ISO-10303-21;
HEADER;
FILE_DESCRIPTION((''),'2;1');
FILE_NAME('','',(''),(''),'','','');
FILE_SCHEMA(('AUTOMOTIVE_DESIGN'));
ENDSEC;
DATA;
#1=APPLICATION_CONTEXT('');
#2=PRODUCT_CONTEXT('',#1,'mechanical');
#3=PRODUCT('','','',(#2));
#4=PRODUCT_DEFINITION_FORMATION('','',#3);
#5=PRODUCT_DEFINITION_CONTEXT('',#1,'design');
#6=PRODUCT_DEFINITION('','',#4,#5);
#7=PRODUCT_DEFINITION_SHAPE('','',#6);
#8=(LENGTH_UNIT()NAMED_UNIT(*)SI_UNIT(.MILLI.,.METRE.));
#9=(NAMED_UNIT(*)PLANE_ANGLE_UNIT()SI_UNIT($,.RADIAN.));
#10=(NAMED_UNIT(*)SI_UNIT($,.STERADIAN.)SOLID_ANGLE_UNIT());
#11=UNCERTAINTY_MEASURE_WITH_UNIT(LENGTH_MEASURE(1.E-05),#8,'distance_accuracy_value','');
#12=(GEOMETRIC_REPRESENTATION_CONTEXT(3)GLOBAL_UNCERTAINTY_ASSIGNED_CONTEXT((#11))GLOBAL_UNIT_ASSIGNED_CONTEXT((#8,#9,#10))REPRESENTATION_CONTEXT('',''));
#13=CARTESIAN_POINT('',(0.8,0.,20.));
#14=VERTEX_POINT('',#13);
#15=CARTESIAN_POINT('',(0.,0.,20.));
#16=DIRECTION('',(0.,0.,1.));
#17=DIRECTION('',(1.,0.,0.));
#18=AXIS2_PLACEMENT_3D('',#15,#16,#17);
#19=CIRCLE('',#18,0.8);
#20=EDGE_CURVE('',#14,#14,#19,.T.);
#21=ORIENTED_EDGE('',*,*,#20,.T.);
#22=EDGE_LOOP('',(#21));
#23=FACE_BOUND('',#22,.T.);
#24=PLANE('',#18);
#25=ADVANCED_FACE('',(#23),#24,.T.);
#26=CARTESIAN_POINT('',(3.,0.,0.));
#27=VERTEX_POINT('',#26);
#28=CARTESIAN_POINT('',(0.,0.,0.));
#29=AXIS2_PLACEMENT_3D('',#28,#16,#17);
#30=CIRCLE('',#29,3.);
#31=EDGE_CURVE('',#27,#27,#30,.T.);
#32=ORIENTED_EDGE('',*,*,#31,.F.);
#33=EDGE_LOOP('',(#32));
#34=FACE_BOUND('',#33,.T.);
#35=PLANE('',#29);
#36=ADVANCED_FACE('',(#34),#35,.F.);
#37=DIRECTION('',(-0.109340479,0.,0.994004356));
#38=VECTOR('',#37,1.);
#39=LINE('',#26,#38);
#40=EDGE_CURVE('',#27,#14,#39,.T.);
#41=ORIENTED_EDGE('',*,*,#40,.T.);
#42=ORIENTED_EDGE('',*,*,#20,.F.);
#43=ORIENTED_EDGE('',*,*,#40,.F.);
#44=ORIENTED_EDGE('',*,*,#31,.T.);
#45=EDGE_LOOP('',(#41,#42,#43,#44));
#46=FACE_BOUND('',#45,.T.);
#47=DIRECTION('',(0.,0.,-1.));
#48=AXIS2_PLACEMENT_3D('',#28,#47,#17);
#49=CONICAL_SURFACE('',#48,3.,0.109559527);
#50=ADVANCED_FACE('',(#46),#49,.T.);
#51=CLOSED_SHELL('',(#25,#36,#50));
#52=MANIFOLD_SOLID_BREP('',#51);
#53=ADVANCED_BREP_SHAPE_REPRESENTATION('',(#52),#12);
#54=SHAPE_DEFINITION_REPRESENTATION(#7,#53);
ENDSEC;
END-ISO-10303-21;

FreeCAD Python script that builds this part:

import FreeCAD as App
import Part
import Sketcher
from FreeCAD import Vector
Q = App.Units.Quantity


def add_polygon(sketch, points):
    """Adds a closed chain of lines whose ends are joined by coincident constraints."""
    first, n = sketch.GeometryCount, len(points)
    for a, b in zip(points, points[1:] + points[:1]):
        sketch.addGeometry(Part.LineSegment(App.Vector(*a, 0), App.Vector(*b, 0)), False)
    for i in range(n):
        sketch.addConstraint(Sketcher.Constraint("Coincident", first + i, 2, first + (i + 1) % n, 1))

doc = App.newDocument("Part")
body = doc.addObject("PartDesign::Body", "Body")

sketch1 = body.newObject("Sketcher::SketchObject", "Sketch")
sketch1.AttachmentSupport = (doc.getObject("XZ_Plane"), [""])
sketch1.MapMode = "FlatFace"
add_polygon(sketch1, [(0, 0), (3, 0), (0.8, 20), (0, 20)])
sketch1.addConstraint(Sketcher.Constraint("Horizontal", 0))
sketch1.addConstraint(Sketcher.Constraint("Horizontal", 2))
sketch1.addConstraint(Sketcher.Constraint("Vertical", 3))
sketch1.addConstraint(Sketcher.Constraint("Coincident", 3, 2, -1, 1))
sketch1.addConstraint(Sketcher.Constraint("DistanceX", 0, 1, 0, 2, Q("3 mm")))
sketch1.addConstraint(Sketcher.Constraint("DistanceY", 3, 2, 3, 1, Q("20 mm")))
sketch1.addConstraint(Sketcher.Constraint("DistanceX", 2, 2, 2, 1, Q("0.8 mm")))
revolution = body.newObject("PartDesign::Revolution", "Revolution")
revolution.Profile = sketch1
revolution.ReferenceAxis = (sketch1, ["V_Axis"])
revolution.Angle = 360

doc.recompute()
